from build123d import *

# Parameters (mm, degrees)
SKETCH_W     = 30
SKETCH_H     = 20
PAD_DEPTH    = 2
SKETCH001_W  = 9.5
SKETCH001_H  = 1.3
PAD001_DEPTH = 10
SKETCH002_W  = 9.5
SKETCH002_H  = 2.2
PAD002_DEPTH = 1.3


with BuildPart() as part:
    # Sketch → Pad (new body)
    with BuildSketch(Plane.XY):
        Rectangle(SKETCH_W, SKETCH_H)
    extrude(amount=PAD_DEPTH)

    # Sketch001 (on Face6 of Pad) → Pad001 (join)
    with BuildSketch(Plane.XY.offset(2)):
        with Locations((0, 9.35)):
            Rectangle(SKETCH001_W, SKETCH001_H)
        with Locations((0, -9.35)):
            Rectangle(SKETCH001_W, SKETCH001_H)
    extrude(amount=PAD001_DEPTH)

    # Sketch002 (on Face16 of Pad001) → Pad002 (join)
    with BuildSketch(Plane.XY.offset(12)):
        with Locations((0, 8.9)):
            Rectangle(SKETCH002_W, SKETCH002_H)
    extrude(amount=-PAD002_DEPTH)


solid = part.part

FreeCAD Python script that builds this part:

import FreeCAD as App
import Part
import Sketcher
from FreeCAD import Vector

doc = App.newDocument("Part")
body = doc.addObject("PartDesign::Body", "Body")

sketch1 = body.newObject("Sketcher::SketchObject", "Sketch")
sketch1.AttachmentSupport = (doc.getObject("XY_Plane"), [""])
sketch1.MapMode = "FlatFace"
sketch1.addGeometry(Part.LineSegment(Vector(-15, 10, 0), Vector(-15, -10, 0)), False)
sketch1.addGeometry(Part.LineSegment(Vector(-15, -10, 0), Vector(15, -10, 0)), False)
sketch1.addGeometry(Part.LineSegment(Vector(15, -10, 0), Vector(15, 10, 0)), False)
sketch1.addGeometry(Part.LineSegment(Vector(15, 10, 0), Vector(-15, 10, 0)), False)
sketch1.addConstraint(Sketcher.Constraint("Coincident", 0, 2, 1, 1))
sketch1.addConstraint(Sketcher.Constraint("Coincident", 1, 2, 2, 1))
sketch1.addConstraint(Sketcher.Constraint("Coincident", 2, 2, 3, 1))
sketch1.addConstraint(Sketcher.Constraint("Coincident", 3, 2, 0, 1))
sketch1.addConstraint(Sketcher.Constraint("Vertical", 0))
sketch1.addConstraint(Sketcher.Constraint("Horizontal", 1))
sketch1.addConstraint(Sketcher.Constraint("Vertical", 2))
sketch1.addConstraint(Sketcher.Constraint("Horizontal", 3))
sketch1.addConstraint(Sketcher.Constraint("Symmetric", 0, 2, 2, 2, -1, 1))
sketch1.addConstraint(Sketcher.Constraint("DistanceX", 1, 1, 1, 2, 30.0))
sketch1.addConstraint(Sketcher.Constraint("DistanceY", 0, 2, 0, 1, 20.0))
pad1 = body.newObject("PartDesign::Pad", "Pad")
pad1.Profile = sketch1
pad1.Length = 2

sketch2 = body.newObject("Sketcher::SketchObject", "Sketch001")
sketch2.AttachmentSupport = (doc.getObject("XY_Plane"), [""])
sketch2.MapMode = "FlatFace"
sketch2.AttachmentOffset = App.Placement(Vector(0, 0, 2), App.Rotation())
sketch2.addGeometry(Part.LineSegment(Vector(-4.75, 10, 0), Vector(-4.75, 8.7, 0)), False)
sketch2.addGeometry(Part.LineSegment(Vector(-4.75, 8.7, 0), Vector(4.75, 8.7, 0)), False)
sketch2.addGeometry(Part.LineSegment(Vector(4.75, 8.7, 0), Vector(4.75, 10, 0)), False)
sketch2.addGeometry(Part.LineSegment(Vector(4.75, 10, 0), Vector(-4.75, 10, 0)), False)
sketch2.addGeometry(Part.LineSegment(Vector(-4.75, -8.7, 0), Vector(-4.75, -10, 0)), False)
sketch2.addGeometry(Part.LineSegment(Vector(-4.75, -10, 0), Vector(4.75, -10, 0)), False)
sketch2.addGeometry(Part.LineSegment(Vector(4.75, -10, 0), Vector(4.75, -8.7, 0)), False)
sketch2.addGeometry(Part.LineSegment(Vector(4.75, -8.7, 0), Vector(-4.75, -8.7, 0)), False)
sketch2.addConstraint(Sketcher.Constraint("Coincident", 0, 2, 1, 1))
sketch2.addConstraint(Sketcher.Constraint("Coincident", 1, 2, 2, 1))
sketch2.addConstraint(Sketcher.Constraint("Coincident", 2, 2, 3, 1))
sketch2.addConstraint(Sketcher.Constraint("Coincident", 3, 2, 0, 1))
sketch2.addConstraint(Sketcher.Constraint("Coincident", 4, 2, 5, 1))
sketch2.addConstraint(Sketcher.Constraint("Coincident", 5, 2, 6, 1))
sketch2.addConstraint(Sketcher.Constraint("Coincident", 6, 2, 7, 1))
sketch2.addConstraint(Sketcher.Constraint("Coincident", 7, 2, 4, 1))
sketch2.addConstraint(Sketcher.Constraint("Vertical", 0))
sketch2.addConstraint(Sketcher.Constraint("Horizontal", 1))
sketch2.addConstraint(Sketcher.Constraint("Vertical", 2))
sketch2.addConstraint(Sketcher.Constraint("Horizontal", 3))
sketch2.addConstraint(Sketcher.Constraint("Vertical", 4))
sketch2.addConstraint(Sketcher.Constraint("Horizontal", 5))
sketch2.addConstraint(Sketcher.Constraint("Vertical", 6))
sketch2.addConstraint(Sketcher.Constraint("Horizontal", 7))
sketch2.addConstraint(Sketcher.Constraint("Symmetric", 2, 2, 4, 2, -1, 1))
sketch2.addConstraint(Sketcher.Constraint("Symmetric", 0, 2, 6, 2, -1, 1))
sketch2.addConstraint(Sketcher.Constraint("Vertical", 3, 2, 4, 2))
sketch2.addConstraint(Sketcher.Constraint("DistanceX", 1, 1, 1, 2, 9.5))
sketch2.addConstraint(Sketcher.Constraint("DistanceY", 0, 2, 0, 1, 1.3))
sketch2.addConstraint(Sketcher.Constraint("DistanceY", -1, 1, 2, 2, 10.0))
pad2 = body.newObject("PartDesign::Pad", "Pad001")
pad2.Profile = sketch2
pad2.Length = 10

sketch3 = body.newObject("Sketcher::SketchObject", "Sketch002")
sketch3.AttachmentSupport = (doc.getObject("XY_Plane"), [""])
sketch3.MapMode = "FlatFace"
sketch3.AttachmentOffset = App.Placement(Vector(0, 0, 12), App.Rotation())
sketch3.addGeometry(Part.LineSegment(Vector(-4.75, 10, 0), Vector(-4.75, 7.8, 0)), False)
sketch3.addGeometry(Part.LineSegment(Vector(-4.75, 7.8, 0), Vector(4.75, 7.8, 0)), False)
sketch3.addGeometry(Part.LineSegment(Vector(4.75, 7.8, 0), Vector(4.75, 10, 0)), False)
sketch3.addGeometry(Part.LineSegment(Vector(4.75, 10, 0), Vector(-4.75, 10, 0)), False)
sketch3.addConstraint(Sketcher.Constraint("Coincident", 0, 2, 1, 1))
sketch3.addConstraint(Sketcher.Constraint("Coincident", 1, 2, 2, 1))
sketch3.addConstraint(Sketcher.Constraint("Coincident", 2, 2, 3, 1))
sketch3.addConstraint(Sketcher.Constraint("Coincident", 3, 2, 0, 1))
sketch3.addConstraint(Sketcher.Constraint("Vertical", 0))
sketch3.addConstraint(Sketcher.Constraint("Horizontal", 1))
sketch3.addConstraint(Sketcher.Constraint("Vertical", 2))
sketch3.addConstraint(Sketcher.Constraint("Horizontal", 3))
sketch3.addConstraint(Sketcher.Constraint("DistanceX", 1, 1, 1, 2, 9.5))
sketch3.addConstraint(Sketcher.Constraint("DistanceY", 0, 2, 0, 1, 2.2))
sketch3.addConstraint(Sketcher.Constraint("DistanceY", -1, 1, 2, 2, 10.0))
sketch3.addConstraint(Sketcher.Constraint("DistanceX", 0, 2, -1, 1, 4.75))
pad3 = body.newObject("PartDesign::Pad", "Pad002")
pad3.Profile = sketch3
pad3.Length = 1.3
pad3.Reversed = True

doc.recompute()
